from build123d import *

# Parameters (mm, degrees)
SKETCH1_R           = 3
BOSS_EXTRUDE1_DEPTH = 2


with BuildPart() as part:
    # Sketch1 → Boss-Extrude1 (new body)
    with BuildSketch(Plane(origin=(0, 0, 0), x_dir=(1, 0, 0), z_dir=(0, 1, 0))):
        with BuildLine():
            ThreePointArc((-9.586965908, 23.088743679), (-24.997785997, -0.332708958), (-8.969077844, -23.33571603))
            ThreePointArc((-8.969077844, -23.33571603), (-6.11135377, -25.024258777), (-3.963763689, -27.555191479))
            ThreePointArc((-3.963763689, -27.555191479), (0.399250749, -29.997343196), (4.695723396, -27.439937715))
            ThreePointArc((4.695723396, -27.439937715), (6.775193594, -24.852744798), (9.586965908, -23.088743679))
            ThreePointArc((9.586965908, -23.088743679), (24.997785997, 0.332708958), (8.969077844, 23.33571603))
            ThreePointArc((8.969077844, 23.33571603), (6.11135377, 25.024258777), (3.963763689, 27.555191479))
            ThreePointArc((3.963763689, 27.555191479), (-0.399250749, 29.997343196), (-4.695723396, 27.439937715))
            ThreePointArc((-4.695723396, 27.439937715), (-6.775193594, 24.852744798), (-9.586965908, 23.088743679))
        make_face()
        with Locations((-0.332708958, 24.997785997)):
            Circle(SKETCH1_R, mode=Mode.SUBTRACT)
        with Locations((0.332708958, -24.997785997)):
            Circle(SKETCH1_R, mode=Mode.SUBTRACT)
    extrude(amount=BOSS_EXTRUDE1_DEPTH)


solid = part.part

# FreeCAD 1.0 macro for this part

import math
import FreeCAD as App
import Part
import Sketcher
from FreeCAD import Vector

doc = App.newDocument("Part")
params = doc.addObject("Spreadsheet::Sheet", "Params")
for row, (alias, value) in enumerate([
    ("sketch1_diameter", "6 mm"),
    ("sketch1_radius", "25 mm"),
    ("sketch1_radius2", "10 mm"),
    ("sketch1_radius3", "5 mm"),
    ("pad1_length", "2 mm"),
], start=1):
    params.set(f"A{row}", alias)
    params.set(f"B{row}", "=" + value)
    params.setAlias(f"B{row}", alias)

body = doc.addObject("PartDesign::Body", "Body")

# Sketch on XZ plane
sketch1 = body.newObject("Sketcher::SketchObject", "Sketch")
sketch1.AttachmentSupport = (doc.getObject("XZ_Plane"), [""])
sketch1.MapMode = "FlatFace"
sketch1.addGeometry([
    Part.ArcOfCircle(Part.Circle(Vector(0, 0, 0), Vector(0, 0, 1), 25), math.radians(111), math.radians(247)),  # 0
    Part.ArcOfCircle(Part.Circle(Vector(-12.6, 32.7, 0), Vector(0, 0, 1), 10), math.radians(-69), math.radians(-31)),  # 1
    Part.ArcOfCircle(Part.Circle(Vector(0.3, 25, 0), Vector(0, 0, 1), 5), math.radians(29), math.radians(149)),  # 2
    Part.ArcOfCircle(Part.Circle(Vector(13.4, 32.3, 0), Vector(0, 0, 1), 10), math.radians(-151), math.radians(-113)),  # 3
    Part.ArcOfCircle(Part.Circle(Vector(0, 0, 0), Vector(0, 0, 1), 25), math.radians(-69), math.radians(67)),  # 4
    Part.ArcOfCircle(Part.Circle(Vector(12.6, -32.7, 0), Vector(0, 0, 1), 10), math.radians(111), math.radians(149)),  # 5
    Part.ArcOfCircle(Part.Circle(Vector(-0.3, -25, 0), Vector(0, 0, 1), 5), math.radians(-151), math.radians(-31)),  # 6
    Part.ArcOfCircle(Part.Circle(Vector(-13.4, -32.3, 0), Vector(0, 0, 1), 10), math.radians(29), math.radians(67)),  # 7
    Part.Circle(Vector(0.3, 25, 0), Vector(0, 0, 1), 3),  # 8
    Part.Circle(Vector(-0.3, -25, 0), Vector(0, 0, 1), 3),  # 9
], False)
sketch1.addConstraint([
    Sketcher.Constraint("Tangent", 0, 1, 1, 1),
    Sketcher.Constraint("Tangent", 1, 2, 2, 2),
    Sketcher.Constraint("Tangent", 2, 1, 3, 1),
    Sketcher.Constraint("Tangent", 3, 2, 4, 2),
    Sketcher.Constraint("Tangent", 4, 1, 5, 1),
    Sketcher.Constraint("Tangent", 5, 2, 6, 2),
    Sketcher.Constraint("Tangent", 6, 1, 7, 1),
    Sketcher.Constraint("Tangent", 7, 2, 0, 2),
    Sketcher.Constraint("Coincident", 0, 3, -1, 1),
    Sketcher.Constraint("Coincident", 4, 3, -1, 1),
    Sketcher.Constraint("Coincident", 8, 3, 2, 3),
    Sketcher.Constraint("Coincident", 9, 3, 6, 3),
    Sketcher.Constraint("Equal", 1, 3),
    Sketcher.Constraint("Equal", 0, 4),
    Sketcher.Constraint("Equal", 3, 5),
    Sketcher.Constraint("Equal", 2, 6),
    Sketcher.Constraint("Equal", 5, 7),
    Sketcher.Constraint("Equal", 8, 9),
    Sketcher.Constraint("Symmetric", 2, 3, 6, 3, -1, 1),
    Sketcher.Constraint("Diameter", 8, 6.0),
    Sketcher.Constraint("Radius", 0, 25.0),
    Sketcher.Constraint("Radius", 1, 10.0),
    Sketcher.Constraint("Radius", 2, 5.0),
    Sketcher.Constraint("DistanceX", 2, 3, 5, 3, 12.224),
    Sketcher.Constraint("DistanceX", 0, 1, 2, 1, 13.664801),
])
sketch1.setExpression("Constraints[19]", "Params.sketch1_diameter")
sketch1.setExpression("Constraints[20]", "Params.sketch1_radius")
sketch1.setExpression("Constraints[21]", "Params.sketch1_radius2")
sketch1.setExpression("Constraints[22]", "Params.sketch1_radius3")
pad1 = body.newObject("PartDesign::Pad", "Pad")
pad1.Profile = sketch1
pad1.setExpression("Length", "Params.pad1_length")
pad1.Reversed = True

doc.recompute()
